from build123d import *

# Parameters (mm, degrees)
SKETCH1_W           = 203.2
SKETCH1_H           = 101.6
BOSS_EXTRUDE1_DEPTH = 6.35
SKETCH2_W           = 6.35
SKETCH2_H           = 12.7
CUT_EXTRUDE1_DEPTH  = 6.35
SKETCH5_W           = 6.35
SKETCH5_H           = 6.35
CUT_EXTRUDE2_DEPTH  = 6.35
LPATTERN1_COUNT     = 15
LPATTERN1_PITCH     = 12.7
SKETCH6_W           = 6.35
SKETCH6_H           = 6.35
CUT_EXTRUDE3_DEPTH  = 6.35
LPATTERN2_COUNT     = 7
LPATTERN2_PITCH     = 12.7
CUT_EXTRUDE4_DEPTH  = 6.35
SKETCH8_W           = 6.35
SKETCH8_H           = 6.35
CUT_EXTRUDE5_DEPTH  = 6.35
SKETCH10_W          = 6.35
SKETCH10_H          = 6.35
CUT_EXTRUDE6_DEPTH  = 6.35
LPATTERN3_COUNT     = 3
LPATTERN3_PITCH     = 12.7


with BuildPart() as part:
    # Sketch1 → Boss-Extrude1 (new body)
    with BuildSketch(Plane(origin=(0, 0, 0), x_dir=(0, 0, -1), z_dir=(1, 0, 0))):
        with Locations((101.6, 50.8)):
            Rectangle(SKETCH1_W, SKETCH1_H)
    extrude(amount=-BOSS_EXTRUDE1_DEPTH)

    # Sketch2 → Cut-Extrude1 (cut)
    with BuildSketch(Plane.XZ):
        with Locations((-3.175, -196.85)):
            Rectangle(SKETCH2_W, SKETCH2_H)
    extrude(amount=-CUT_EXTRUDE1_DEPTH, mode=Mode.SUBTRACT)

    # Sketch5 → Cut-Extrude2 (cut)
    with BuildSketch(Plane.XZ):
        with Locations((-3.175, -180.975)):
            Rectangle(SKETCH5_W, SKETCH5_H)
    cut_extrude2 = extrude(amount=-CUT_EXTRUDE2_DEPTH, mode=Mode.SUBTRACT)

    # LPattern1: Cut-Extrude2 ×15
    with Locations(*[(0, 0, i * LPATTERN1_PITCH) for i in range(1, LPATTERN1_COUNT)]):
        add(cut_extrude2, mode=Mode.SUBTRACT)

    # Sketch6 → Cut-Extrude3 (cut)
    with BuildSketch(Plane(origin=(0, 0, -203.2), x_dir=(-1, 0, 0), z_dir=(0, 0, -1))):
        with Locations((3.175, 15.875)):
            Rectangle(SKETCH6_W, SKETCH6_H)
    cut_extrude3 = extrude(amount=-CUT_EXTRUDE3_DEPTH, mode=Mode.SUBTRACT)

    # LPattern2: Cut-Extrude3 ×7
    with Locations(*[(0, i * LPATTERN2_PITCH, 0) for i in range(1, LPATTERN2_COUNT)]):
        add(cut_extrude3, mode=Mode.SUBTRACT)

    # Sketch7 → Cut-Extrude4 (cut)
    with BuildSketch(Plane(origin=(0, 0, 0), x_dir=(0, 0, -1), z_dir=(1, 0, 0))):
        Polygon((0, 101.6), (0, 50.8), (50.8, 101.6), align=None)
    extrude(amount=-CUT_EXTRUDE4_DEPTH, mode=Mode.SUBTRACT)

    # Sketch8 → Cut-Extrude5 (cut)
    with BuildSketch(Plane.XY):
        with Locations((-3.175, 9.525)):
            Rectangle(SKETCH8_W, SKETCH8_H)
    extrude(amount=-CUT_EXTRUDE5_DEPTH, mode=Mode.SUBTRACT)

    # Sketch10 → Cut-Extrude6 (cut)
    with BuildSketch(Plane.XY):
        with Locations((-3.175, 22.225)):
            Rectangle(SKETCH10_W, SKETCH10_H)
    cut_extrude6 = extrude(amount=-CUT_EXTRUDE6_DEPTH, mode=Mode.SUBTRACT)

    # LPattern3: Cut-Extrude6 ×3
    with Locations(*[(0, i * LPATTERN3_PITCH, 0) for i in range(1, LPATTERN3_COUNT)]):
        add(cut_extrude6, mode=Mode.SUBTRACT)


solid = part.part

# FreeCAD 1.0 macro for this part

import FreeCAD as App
import Part
import Sketcher
Q = App.Units.Quantity

doc = App.newDocument("Part")
params = doc.addObject("Spreadsheet::Sheet", "Params")
for row, (alias, value) in enumerate([
    ("sketch1_width", "4 in"),
    ("sketch1_height", "8 in"),
    ("pad1_length", "0.25 in"),
    ("sketch2_height", "0.5 in"),
    ("sketch2_width", "0.25 in"),
    ("pocket1_length", "0.25 in"),
    ("sketch3_width", "0.25 in"),
    ("pocket2_length", "0.25 in"),
    ("linearpattern_pitch", "0.5 in"),
    ("sketch4_width", "0.25 in"),
    ("pocket3_length", "0.25 in"),
    ("linearpattern2_pitch", "0.5 in"),
    ("sketch5_width", "2 in"),
    ("pocket4_length", "0.25 in"),
    ("sketch6_width", "0.25 in"),
    ("pocket5_length", "0.25 in"),
    ("sketch7_width", "0.25 in"),
    ("pocket6_length", "0.25 in"),
    ("linearpattern3_pitch", "0.5 in"),
], start=1):
    params.set(f"A{row}", alias)
    params.set(f"B{row}", "=" + value)
    params.setAlias(f"B{row}", alias)

body = doc.addObject("PartDesign::Body", "Body")

# Sketch on YZ plane
sketch1 = body.newObject("Sketcher::SketchObject", "Sketch")
sketch1.AttachmentSupport = (doc.getObject("YZ_Plane"), [""])
sketch1.MapMode = "FlatFace"
sketch1.addGeometry([
    Part.LineSegment(App.Vector(101.6, 0, 0), App.Vector(0, 0, 0)),
    Part.LineSegment(App.Vector(0, 0, 0), App.Vector(0, -203.2, 0)),
    Part.LineSegment(App.Vector(0, -203.2, 0), App.Vector(101.6, -203.2, 0)),
    Part.LineSegment(App.Vector(101.6, -203.2, 0), App.Vector(101.6, 0, 0)),
], False)
sketch1.addConstraint([
    Sketcher.Constraint("Coincident", 0, 2, 1, 1),
    Sketcher.Constraint("Coincident", 1, 2, 2, 1),
    Sketcher.Constraint("Coincident", 2, 2, 3, 1),
    Sketcher.Constraint("Coincident", 3, 2, 0, 1),
    Sketcher.Constraint("Horizontal", 0),
    Sketcher.Constraint("Vertical", 1),
    Sketcher.Constraint("Horizontal", 2),
    Sketcher.Constraint("Vertical", 3),
    Sketcher.Constraint("Coincident", 0, 2, -1, 1),
    Sketcher.Constraint("DistanceX", 0, 2, 0, 1, Q("4 in")),
    Sketcher.Constraint("DistanceY", 1, 2, 1, 1, Q("8 in")),
])
sketch1.setExpression("Constraints[9]", "Params.sketch1_width")
sketch1.setExpression("Constraints[10]", "Params.sketch1_height")
pad1 = body.newObject("PartDesign::Pad", "Pad")
pad1.Profile = sketch1
pad1.setExpression("Length", "Params.pad1_length")
pad1.Reversed = True

# Sketch on XZ plane
sketch2 = body.newObject("Sketcher::SketchObject", "Sketch001")
sketch2.AttachmentSupport = (doc.getObject("XZ_Plane"), [""])
sketch2.MapMode = "FlatFace"
sketch2.addGeometry([
    Part.LineSegment(App.Vector(-6.35, -190.5, 0), App.Vector(-6.35, -203.2, 0)),
    Part.LineSegment(App.Vector(-6.35, -203.2, 0), App.Vector(0, -203.2, 0)),
    Part.LineSegment(App.Vector(0, -203.2, 0), App.Vector(0, -190.5, 0)),
    Part.LineSegment(App.Vector(0, -190.5, 0), App.Vector(-6.35, -190.5, 0)),
], False)
sketch2.addConstraint([
    Sketcher.Constraint("Coincident", 0, 2, 1, 1),
    Sketcher.Constraint("Coincident", 1, 2, 2, 1),
    Sketcher.Constraint("Coincident", 2, 2, 3, 1),
    Sketcher.Constraint("Coincident", 3, 2, 0, 1),
    Sketcher.Constraint("Vertical", 0),
    Sketcher.Constraint("Horizontal", 1),
    Sketcher.Constraint("Vertical", 2),
    Sketcher.Constraint("Horizontal", 3),
    Sketcher.Constraint("PointOnObject", 1, 2, -2),
    Sketcher.Constraint("DistanceY", 0, 2, 0, 1, Q("0.5 in")),
    Sketcher.Constraint("DistanceY", 0, 2, -1, 1, Q("8 in")),
    Sketcher.Constraint("DistanceX", 1, 1, 1, 2, Q("0.25 in")),
])
sketch2.setExpression("Constraints[9]", "Params.sketch2_height")
sketch2.setExpression("Constraints[11]", "Params.sketch2_width")
pocket1 = body.newObject("PartDesign::Pocket", "Pocket")
pocket1.Profile = sketch2
pocket1.setExpression("Length", "Params.pocket1_length")

# Sketch on XZ plane
sketch3 = body.newObject("Sketcher::SketchObject", "Sketch002")
sketch3.AttachmentSupport = (doc.getObject("XZ_Plane"), [""])
sketch3.MapMode = "FlatFace"
sketch3.addGeometry([
    Part.LineSegment(App.Vector(-6.35, -177.8, 0), App.Vector(-6.35, -184.15, 0)),
    Part.LineSegment(App.Vector(-6.35, -184.15, 0), App.Vector(0, -184.15, 0)),
    Part.LineSegment(App.Vector(0, -184.15, 0), App.Vector(0, -177.8, 0)),
    Part.LineSegment(App.Vector(0, -177.8, 0), App.Vector(-6.35, -177.8, 0)),
], False)
sketch3.addConstraint([
    Sketcher.Constraint("Coincident", 0, 2, 1, 1),
    Sketcher.Constraint("Coincident", 1, 2, 2, 1),
    Sketcher.Constraint("Coincident", 2, 2, 3, 1),
    Sketcher.Constraint("Coincident", 3, 2, 0, 1),
    Sketcher.Constraint("Vertical", 0),
    Sketcher.Constraint("Horizontal", 1),
    Sketcher.Constraint("Vertical", 2),
    Sketcher.Constraint("Horizontal", 3),
    Sketcher.Constraint("PointOnObject", 1, 2, -2),
    Sketcher.Constraint("Equal", 3, 0),
    Sketcher.Constraint("DistanceY", 2, 2, -1, 1, Q("7 in")),
    Sketcher.Constraint("DistanceX", 1, 1, 1, 2, Q("0.25 in")),
])
sketch3.setExpression("Constraints[11]", "Params.sketch3_width")
pocket2 = body.newObject("PartDesign::Pocket", "Pocket001")
pocket2.Profile = sketch3
pocket2.setExpression("Length", "Params.pocket2_length")
doc.recompute()

linearpattern = body.newObject("PartDesign::LinearPattern", "LinearPattern")
linearpattern.Originals = [pocket2]
linearpattern.Direction = (doc.getObject("Z_Axis"), [""])
linearpattern.Mode = "offset"
linearpattern.setExpression("Offset", "Params.linearpattern_pitch")
linearpattern.Occurrences = 15
body.Tip = linearpattern

# Sketch on XY plane
sketch4 = body.newObject("Sketcher::SketchObject", "Sketch003")
sketch4.AttachmentSupport = (doc.getObject("XY_Plane"), [""])
sketch4.MapMode = "FlatFace"
sketch4.AttachmentOffset = App.Placement(App.Vector(0, 0, -8 * 25.4), App.Rotation())
sketch4.addGeometry([
    Part.LineSegment(App.Vector(0, 19.05, 0), App.Vector(0, 12.7, 0)),
    Part.LineSegment(App.Vector(0, 12.7, 0), App.Vector(-6.35, 12.7, 0)),
    Part.LineSegment(App.Vector(-6.35, 12.7, 0), App.Vector(-6.35, 19.05, 0)),
    Part.LineSegment(App.Vector(-6.35, 19.05, 0), App.Vector(0, 19.05, 0)),
], False)
sketch4.addConstraint([
    Sketcher.Constraint("Coincident", 0, 2, 1, 1),
    Sketcher.Constraint("Coincident", 1, 2, 2, 1),
    Sketcher.Constraint("Coincident", 2, 2, 3, 1),
    Sketcher.Constraint("Coincident", 3, 2, 0, 1),
    Sketcher.Constraint("Vertical", 0),
    Sketcher.Constraint("Horizontal", 1),
    Sketcher.Constraint("Vertical", 2),
    Sketcher.Constraint("Horizontal", 3),
    Sketcher.Constraint("PointOnObject", 0, 2, -2),
    Sketcher.Constraint("Equal", 3, 0),
    Sketcher.Constraint("DistanceX", 1, 2, 1, 1, Q("0.25 in")),
    Sketcher.Constraint("DistanceY", -1, 1, 0, 2, Q("0.5 in")),
])
sketch4.setExpression("Constraints[10]", "Params.sketch4_width")
pocket3 = body.newObject("PartDesign::Pocket", "Pocket002")
pocket3.Profile = sketch4
pocket3.setExpression("Length", "Params.pocket3_length")
pocket3.Reversed = True
doc.recompute()

linearpattern2 = body.newObject("PartDesign::LinearPattern", "LinearPattern001")
linearpattern2.Originals = [pocket3]
linearpattern2.Direction = (doc.getObject("Y_Axis"), [""])
linearpattern2.Mode = "offset"
linearpattern2.setExpression("Offset", "Params.linearpattern2_pitch")
linearpattern2.Occurrences = 7
body.Tip = linearpattern2

# Sketch on YZ plane
sketch5 = body.newObject("Sketcher::SketchObject", "Sketch004")
sketch5.AttachmentSupport = (doc.getObject("YZ_Plane"), [""])
sketch5.MapMode = "FlatFace"
sketch5.addGeometry([
    Part.LineSegment(App.Vector(101.6, 0, 0), App.Vector(50.8, 0, 0)),
    Part.LineSegment(App.Vector(50.8, 0, 0), App.Vector(101.6, -50.8, 0)),
    Part.LineSegment(App.Vector(101.6, -50.8, 0), App.Vector(101.6, 0, 0)),
], False)
sketch5.addConstraint([
    Sketcher.Constraint("Coincident", 0, 2, 1, 1),
    Sketcher.Constraint("Coincident", 1, 2, 2, 1),
    Sketcher.Constraint("Coincident", 2, 2, 0, 1),
    Sketcher.Constraint("Horizontal", 0),
    Sketcher.Constraint("Vertical", 2),
    Sketcher.Constraint("PointOnObject", 0, 2, -1),
    Sketcher.Constraint("Equal", 0, 2),
    Sketcher.Constraint("DistanceX", 0, 2, 0, 1, Q("2 in")),
    Sketcher.Constraint("DistanceX", -1, 1, 0, 2, Q("2 in")),
])
sketch5.setExpression("Constraints[7]", "Params.sketch5_width")
pocket4 = body.newObject("PartDesign::Pocket", "Pocket003")
pocket4.Profile = sketch5
pocket4.setExpression("Length", "Params.pocket4_length")

# Sketch on XY plane
sketch6 = body.newObject("Sketcher::SketchObject", "Sketch005")
sketch6.AttachmentSupport = (doc.getObject("XY_Plane"), [""])
sketch6.MapMode = "FlatFace"
sketch6.addGeometry([
    Part.LineSegment(App.Vector(-6.35, 12.7, 0), App.Vector(-6.35, 6.35, 0)),
    Part.LineSegment(App.Vector(-6.35, 6.35, 0), App.Vector(0, 6.35, 0)),
    Part.LineSegment(App.Vector(0, 6.35, 0), App.Vector(0, 12.7, 0)),
    Part.LineSegment(App.Vector(0, 12.7, 0), App.Vector(-6.35, 12.7, 0)),
], False)
sketch6.addConstraint([
    Sketcher.Constraint("Coincident", 0, 2, 1, 1),
    Sketcher.Constraint("Coincident", 1, 2, 2, 1),
    Sketcher.Constraint("Coincident", 2, 2, 3, 1),
    Sketcher.Constraint("Coincident", 3, 2, 0, 1),
    Sketcher.Constraint("Vertical", 0),
    Sketcher.Constraint("Horizontal", 1),
    Sketcher.Constraint("Vertical", 2),
    Sketcher.Constraint("Horizontal", 3),
    Sketcher.Constraint("PointOnObject", 1, 2, -2),
    Sketcher.Constraint("Equal", 3, 0),
    Sketcher.Constraint("DistanceX", 1, 1, 1, 2, Q("0.25 in")),
    Sketcher.Constraint("DistanceY", -1, 1, 2, 2, Q("0.5 in")),
])
sketch6.setExpression("Constraints[10]", "Params.sketch6_width")
pocket5 = body.newObject("PartDesign::Pocket", "Pocket004")
pocket5.Profile = sketch6
pocket5.setExpression("Length", "Params.pocket5_length")

# Sketch on XY plane
sketch7 = body.newObject("Sketcher::SketchObject", "Sketch006")
sketch7.AttachmentSupport = (doc.getObject("XY_Plane"), [""])
sketch7.MapMode = "FlatFace"
sketch7.addGeometry([
    Part.LineSegment(App.Vector(-6.35, 25.4, 0), App.Vector(-6.35, 19.05, 0)),
    Part.LineSegment(App.Vector(-6.35, 19.05, 0), App.Vector(0, 19.05, 0)),
    Part.LineSegment(App.Vector(0, 19.05, 0), App.Vector(0, 25.4, 0)),
    Part.LineSegment(App.Vector(0, 25.4, 0), App.Vector(-6.35, 25.4, 0)),
], False)
sketch7.addConstraint([
    Sketcher.Constraint("Coincident", 0, 2, 1, 1),
    Sketcher.Constraint("Coincident", 1, 2, 2, 1),
    Sketcher.Constraint("Coincident", 2, 2, 3, 1),
    Sketcher.Constraint("Coincident", 3, 2, 0, 1),
    Sketcher.Constraint("Vertical", 0),
    Sketcher.Constraint("Horizontal", 1),
    Sketcher.Constraint("Vertical", 2),
    Sketcher.Constraint("Horizontal", 3),
    Sketcher.Constraint("PointOnObject", 1, 2, -2),
    Sketcher.Constraint("Equal", 3, 0),
    Sketcher.Constraint("DistanceY", -1, 1, 2, 2, Q("1 in")),
    Sketcher.Constraint("DistanceX", 1, 1, 1, 2, Q("0.25 in")),
])
sketch7.setExpression("Constraints[11]", "Params.sketch7_width")
pocket6 = body.newObject("PartDesign::Pocket", "Pocket005")
pocket6.Profile = sketch7
pocket6.setExpression("Length", "Params.pocket6_length")
doc.recompute()

linearpattern3 = body.newObject("PartDesign::LinearPattern", "LinearPattern002")
linearpattern3.Originals = [pocket6]
linearpattern3.Direction = (doc.getObject("Y_Axis"), [""])
linearpattern3.Mode = "offset"
linearpattern3.setExpression("Offset", "Params.linearpattern3_pitch")
linearpattern3.Occurrences = 3
body.Tip = linearpattern3

doc.recompute()
